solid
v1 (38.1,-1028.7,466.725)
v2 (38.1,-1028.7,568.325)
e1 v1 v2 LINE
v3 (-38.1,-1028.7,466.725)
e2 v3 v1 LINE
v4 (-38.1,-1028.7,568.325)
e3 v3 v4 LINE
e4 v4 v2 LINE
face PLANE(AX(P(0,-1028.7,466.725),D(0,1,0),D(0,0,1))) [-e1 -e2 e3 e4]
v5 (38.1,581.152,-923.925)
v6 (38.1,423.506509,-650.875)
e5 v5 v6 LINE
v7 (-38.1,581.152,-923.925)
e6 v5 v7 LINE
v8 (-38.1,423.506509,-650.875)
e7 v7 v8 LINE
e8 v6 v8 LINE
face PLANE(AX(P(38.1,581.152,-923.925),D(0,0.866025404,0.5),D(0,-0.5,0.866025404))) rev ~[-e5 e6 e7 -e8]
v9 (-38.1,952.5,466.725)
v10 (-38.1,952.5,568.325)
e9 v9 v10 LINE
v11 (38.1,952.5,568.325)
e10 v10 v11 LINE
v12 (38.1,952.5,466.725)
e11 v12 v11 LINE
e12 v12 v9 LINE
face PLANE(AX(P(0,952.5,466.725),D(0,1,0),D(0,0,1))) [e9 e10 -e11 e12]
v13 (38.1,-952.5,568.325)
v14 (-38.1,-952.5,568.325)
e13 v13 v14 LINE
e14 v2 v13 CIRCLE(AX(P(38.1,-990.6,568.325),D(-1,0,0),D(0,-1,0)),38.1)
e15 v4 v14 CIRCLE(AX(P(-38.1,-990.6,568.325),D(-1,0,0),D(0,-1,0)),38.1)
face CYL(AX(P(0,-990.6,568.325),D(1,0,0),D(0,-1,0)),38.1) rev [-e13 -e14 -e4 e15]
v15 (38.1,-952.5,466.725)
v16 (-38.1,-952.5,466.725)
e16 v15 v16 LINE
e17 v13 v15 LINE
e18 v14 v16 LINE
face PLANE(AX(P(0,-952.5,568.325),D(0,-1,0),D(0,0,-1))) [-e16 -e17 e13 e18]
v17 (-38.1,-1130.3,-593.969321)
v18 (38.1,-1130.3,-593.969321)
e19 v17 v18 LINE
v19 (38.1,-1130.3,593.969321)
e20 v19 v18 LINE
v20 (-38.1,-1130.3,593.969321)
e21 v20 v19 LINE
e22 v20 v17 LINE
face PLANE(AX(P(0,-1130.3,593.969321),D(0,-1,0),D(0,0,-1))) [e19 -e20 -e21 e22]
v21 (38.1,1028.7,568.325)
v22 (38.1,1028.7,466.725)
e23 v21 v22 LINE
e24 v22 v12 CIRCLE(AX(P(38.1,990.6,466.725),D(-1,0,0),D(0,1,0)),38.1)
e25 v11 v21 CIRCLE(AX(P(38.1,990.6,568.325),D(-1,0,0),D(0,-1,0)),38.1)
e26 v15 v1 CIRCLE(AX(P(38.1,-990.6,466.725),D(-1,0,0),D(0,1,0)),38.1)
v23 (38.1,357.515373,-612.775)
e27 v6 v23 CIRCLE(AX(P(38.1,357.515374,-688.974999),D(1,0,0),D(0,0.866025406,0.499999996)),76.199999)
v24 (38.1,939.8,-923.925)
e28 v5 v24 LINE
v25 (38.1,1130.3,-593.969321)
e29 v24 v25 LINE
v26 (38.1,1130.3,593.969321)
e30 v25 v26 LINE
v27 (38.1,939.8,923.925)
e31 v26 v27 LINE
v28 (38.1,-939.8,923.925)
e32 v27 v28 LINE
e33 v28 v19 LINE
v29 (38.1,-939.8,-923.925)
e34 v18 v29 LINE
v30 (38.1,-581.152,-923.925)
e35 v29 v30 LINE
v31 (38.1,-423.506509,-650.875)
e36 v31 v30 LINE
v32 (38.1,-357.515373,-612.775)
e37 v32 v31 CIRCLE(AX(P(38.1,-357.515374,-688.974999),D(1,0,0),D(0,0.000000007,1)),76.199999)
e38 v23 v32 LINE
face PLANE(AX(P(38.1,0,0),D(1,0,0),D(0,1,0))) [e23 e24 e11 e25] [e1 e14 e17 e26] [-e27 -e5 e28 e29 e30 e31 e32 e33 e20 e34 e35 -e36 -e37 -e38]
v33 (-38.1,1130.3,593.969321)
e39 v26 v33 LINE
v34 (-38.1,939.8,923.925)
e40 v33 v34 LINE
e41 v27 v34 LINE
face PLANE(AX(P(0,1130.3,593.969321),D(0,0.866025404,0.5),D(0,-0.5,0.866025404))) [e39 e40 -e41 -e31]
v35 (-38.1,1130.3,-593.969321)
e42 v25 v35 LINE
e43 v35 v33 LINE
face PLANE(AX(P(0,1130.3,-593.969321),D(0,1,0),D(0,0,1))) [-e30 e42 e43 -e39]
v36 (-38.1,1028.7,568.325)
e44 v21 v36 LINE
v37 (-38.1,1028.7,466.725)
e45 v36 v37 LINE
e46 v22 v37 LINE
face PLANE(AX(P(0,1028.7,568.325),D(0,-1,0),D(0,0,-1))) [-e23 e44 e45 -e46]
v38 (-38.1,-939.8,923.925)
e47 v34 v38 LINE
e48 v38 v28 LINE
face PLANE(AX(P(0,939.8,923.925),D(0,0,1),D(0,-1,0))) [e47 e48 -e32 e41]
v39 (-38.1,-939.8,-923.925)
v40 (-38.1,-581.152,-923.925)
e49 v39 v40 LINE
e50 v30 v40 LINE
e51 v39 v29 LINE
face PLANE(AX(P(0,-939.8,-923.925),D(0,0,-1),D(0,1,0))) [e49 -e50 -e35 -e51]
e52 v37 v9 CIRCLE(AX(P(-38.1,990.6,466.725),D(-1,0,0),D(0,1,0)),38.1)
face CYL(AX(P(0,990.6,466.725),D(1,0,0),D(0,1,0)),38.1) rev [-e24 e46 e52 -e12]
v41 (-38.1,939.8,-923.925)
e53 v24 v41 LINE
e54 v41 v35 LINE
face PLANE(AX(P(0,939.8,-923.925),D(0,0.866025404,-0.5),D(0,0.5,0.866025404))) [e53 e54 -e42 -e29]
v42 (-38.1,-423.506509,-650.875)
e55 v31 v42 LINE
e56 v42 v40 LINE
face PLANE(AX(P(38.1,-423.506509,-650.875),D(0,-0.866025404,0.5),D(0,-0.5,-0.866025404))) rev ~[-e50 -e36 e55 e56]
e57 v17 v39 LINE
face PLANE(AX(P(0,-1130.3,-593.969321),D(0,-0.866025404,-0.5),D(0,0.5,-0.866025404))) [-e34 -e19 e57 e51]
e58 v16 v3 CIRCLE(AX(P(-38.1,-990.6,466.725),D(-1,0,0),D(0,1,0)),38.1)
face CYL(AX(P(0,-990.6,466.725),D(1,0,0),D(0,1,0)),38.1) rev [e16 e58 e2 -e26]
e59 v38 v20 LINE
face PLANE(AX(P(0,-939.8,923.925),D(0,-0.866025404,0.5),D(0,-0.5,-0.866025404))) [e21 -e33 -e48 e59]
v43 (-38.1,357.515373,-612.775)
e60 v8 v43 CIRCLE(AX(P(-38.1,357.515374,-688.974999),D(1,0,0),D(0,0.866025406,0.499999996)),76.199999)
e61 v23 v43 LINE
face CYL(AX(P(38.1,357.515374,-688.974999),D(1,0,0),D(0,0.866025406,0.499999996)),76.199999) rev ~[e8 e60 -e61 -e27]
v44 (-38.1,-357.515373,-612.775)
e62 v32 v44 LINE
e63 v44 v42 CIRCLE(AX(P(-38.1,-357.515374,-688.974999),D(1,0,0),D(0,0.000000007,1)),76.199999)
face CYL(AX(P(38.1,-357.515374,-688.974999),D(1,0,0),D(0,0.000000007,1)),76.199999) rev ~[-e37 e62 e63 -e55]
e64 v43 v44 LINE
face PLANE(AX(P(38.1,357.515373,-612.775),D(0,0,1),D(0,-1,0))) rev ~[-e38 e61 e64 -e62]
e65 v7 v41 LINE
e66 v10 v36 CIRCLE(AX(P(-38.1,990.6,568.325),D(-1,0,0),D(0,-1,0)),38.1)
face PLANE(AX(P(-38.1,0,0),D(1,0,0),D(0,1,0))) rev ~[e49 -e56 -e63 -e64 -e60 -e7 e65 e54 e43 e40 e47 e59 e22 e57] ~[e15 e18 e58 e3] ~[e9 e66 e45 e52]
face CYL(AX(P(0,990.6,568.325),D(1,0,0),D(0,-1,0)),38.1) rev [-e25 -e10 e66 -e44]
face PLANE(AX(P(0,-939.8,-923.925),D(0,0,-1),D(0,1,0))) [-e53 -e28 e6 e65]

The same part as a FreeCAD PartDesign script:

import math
import FreeCAD as App
import Part
import Sketcher
from FreeCAD import Vector
Q = App.Units.Quantity

doc = App.newDocument("Part")
body = doc.addObject("PartDesign::Body", "Body")

sketch1 = body.newObject("Sketcher::SketchObject", "Sketch")
sketch1.AttachmentSupport = (doc.getObject("YZ_Plane"), [""])
sketch1.MapMode = "FlatFace"
sketch1.addGeometry(Part.LineSegment(Vector(939.8, 923.925, 0), Vector(-939.8, 923.925, 0)), False)
sketch1.addGeometry(Part.LineSegment(Vector(-939.8, 923.925, 0), Vector(-1130.3, 593.969321, 0)), False)
sketch1.addGeometry(Part.LineSegment(Vector(-1130.3, 593.969321, 0), Vector(-1130.3, -593.969321, 0)), False)
sketch1.addGeometry(Part.LineSegment(Vector(-1130.3, -593.969321, 0), Vector(-939.8, -923.925, 0)), False)
sketch1.addGeometry(Part.LineSegment(Vector(-939.8, -923.925, 0), Vector(939.8, -923.925, 0)), False)
sketch1.addGeometry(Part.LineSegment(Vector(939.8, -923.925, 0), Vector(1130.3, -593.969321, 0)), False)
sketch1.addGeometry(Part.LineSegment(Vector(1130.3, -593.969321, 0), Vector(1130.3, 593.969321, 0)), False)
sketch1.addGeometry(Part.LineSegment(Vector(1130.3, 593.969321, 0), Vector(939.8, 923.925, 0)), False)
sketch1.addGeometry(Part.ArcOfCircle(Part.Circle(Vector(-990.6, 466.725, 0), Vector(0, 0, 1), 38.1), math.radians(180), math.radians(360)), False)
sketch1.addGeometry(Part.LineSegment(Vector(-1028.7, 466.725, 0), Vector(-1028.7, 568.325, 0)), False)
sketch1.addGeometry(Part.ArcOfCircle(Part.Circle(Vector(-990.6, 568.325, 0), Vector(0, 0, 1), 38.1), math.radians(0), math.radians(180)), False)
sketch1.addGeometry(Part.LineSegment(Vector(-952.5, 568.325, 0), Vector(-952.5, 466.725, 0)), False)
sketch1.addGeometry(Part.LineSegment(Vector(952.5, 466.725, 0), Vector(952.5, 568.325, 0)), False)
sketch1.addGeometry(Part.ArcOfCircle(Part.Circle(Vector(990.6, 568.325, 0), Vector(0, 0, 1), 38.1), math.radians(0), math.radians(180)), False)
sketch1.addGeometry(Part.LineSegment(Vector(1028.7, 568.325, 0), Vector(1028.7, 466.725, 0)), False)
sketch1.addGeometry(Part.ArcOfCircle(Part.Circle(Vector(990.6, 466.725, 0), Vector(0, 0, 1), 38.1), math.radians(180), math.radians(360)), False)
sketch1.addConstraint(Sketcher.Constraint("Coincident", 0, 2, 1, 1))
sketch1.addConstraint(Sketcher.Constraint("Coincident", 1, 2, 2, 1))
sketch1.addConstraint(Sketcher.Constraint("Coincident", 2, 2, 3, 1))
sketch1.addConstraint(Sketcher.Constraint("Coincident", 3, 2, 4, 1))
sketch1.addConstraint(Sketcher.Constraint("Coincident", 4, 2, 5, 1))
sketch1.addConstraint(Sketcher.Constraint("Coincident", 5, 2, 6, 1))
sketch1.addConstraint(Sketcher.Constraint("Coincident", 6, 2, 7, 1))
sketch1.addConstraint(Sketcher.Constraint("Coincident", 7, 2, 0, 1))
sketch1.addConstraint(Sketcher.Constraint("Tangent", 8, 1, 9, 1))
sketch1.addConstraint(Sketcher.Constraint("Tangent", 9, 2, 10, 2))
sketch1.addConstraint(Sketcher.Constraint("Tangent", 10, 1, 11, 1))
sketch1.addConstraint(Sketcher.Constraint("Tangent", 11, 2, 8, 2))
sketch1.addConstraint(Sketcher.Constraint("Tangent", 12, 2, 13, 2))
sketch1.addConstraint(Sketcher.Constraint("Tangent", 13, 1, 14, 1))
sketch1.addConstraint(Sketcher.Constraint("Tangent", 14, 2, 15, 2))
sketch1.addConstraint(Sketcher.Constraint("Tangent", 15, 1, 12, 1))
sketch1.addConstraint(Sketcher.Constraint("Horizontal", 0))
sketch1.addConstraint(Sketcher.Constraint("Vertical", 2))
sketch1.addConstraint(Sketcher.Constraint("Horizontal", 4))
sketch1.addConstraint(Sketcher.Constraint("Vertical", 6))
sketch1.addConstraint(Sketcher.Constraint("Vertical", 9))
sketch1.addConstraint(Sketcher.Constraint("Vertical", 11))
sketch1.addConstraint(Sketcher.Constraint("Vertical", 12))
sketch1.addConstraint(Sketcher.Constraint("Vertical", 14))
sketch1.addConstraint(Sketcher.Constraint("Equal", 10, 13))
sketch1.addConstraint(Sketcher.Constraint("Symmetric", 0, 2, 4, 2, -1, 1))
sketch1.addConstraint(Sketcher.Constraint("Symmetric", 1, 2, 5, 2, -1, 1))
sketch1.addConstraint(Sketcher.Constraint("Symmetric", 10, 3, 13, 3, -2))
sketch1.addConstraint(Sketcher.Constraint("Parallel", 3, 7))
sketch1.addConstraint(Sketcher.Constraint("Horizontal", 8, 3, 15, 3))
sketch1.addConstraint(Sketcher.Constraint("Horizontal", 2, 2, 5, 2))
sketch1.addConstraint(Sketcher.Constraint("Horizontal", 1, 2, 6, 2))
sketch1.addConstraint(Sketcher.Constraint("Vertical", 0, 2, 3, 2))
sketch1.addConstraint(Sketcher.Constraint("Radius", 8, Q("1.5 in")))
sketch1.addConstraint(Sketcher.Constraint("DistanceX", 0, 2, 0, 1, Q("74 in")))
sketch1.addConstraint(Sketcher.Constraint("DistanceY", 9, 1, 9, 2, Q("4 in")))
sketch1.addConstraint(Sketcher.Constraint("Distance", 1, Q("15 in")))
sketch1.addConstraint(Sketcher.Constraint("DistanceX", 8, 3, -1, 1, Q("39 in")))
sketch1.addConstraint(Sketcher.Constraint("Angle", 1, Q("-120 deg")))
sketch1.addConstraint(Sketcher.Constraint("DistanceY", 10, 3, 0, 2, Q("14 in")))
sketch1.addConstraint(Sketcher.Constraint("DistanceY", 3, 2, 8, 3, Q("54.75 in")))
pad1 = body.newObject("PartDesign::Pad", "Pad")
pad1.Profile = sketch1
pad1.Length = Q("3 in")
pad1.Midplane = True

sketch2 = body.newObject("Sketcher::SketchObject", "Sketch001")
sketch2.AttachmentSupport = (doc.getObject("YZ_Plane"), [""])
sketch2.MapMode = "FlatFace"
sketch2.AttachmentOffset = App.Placement(Vector(0, 0, 1.5 * 25.4), App.Rotation())
sketch2.addGeometry(Part.LineSegment(Vector(357.515373, -612.775, 0), Vector(-357.515373, -612.775, 0)), False)
sketch2.addGeometry(Part.ArcOfCircle(Part.Circle(Vector(-357.515374, -688.974999, 0), Vector(0, 0, 1), 76.199999), math.radians(90), math.radians(150)), False)
sketch2.addGeometry(Part.LineSegment(Vector(-423.506509, -650.875, 0), Vector(-581.152, -923.925, 0)), False)
sketch2.addGeometry(Part.LineSegment(Vector(-581.152, -923.925, 0), Vector(581.152, -923.925, 0)), False)
sketch2.addGeometry(Part.LineSegment(Vector(581.152, -923.925, 0), Vector(423.506509, -650.875, 0)), False)
sketch2.addGeometry(Part.ArcOfCircle(Part.Circle(Vector(357.515374, -688.974999, 0), Vector(0, 0, 1), 76.199999), math.radians(30), math.radians(90)), False)
sketch2.addConstraint(Sketcher.Constraint("Tangent", 0, 2, 1, 1))
sketch2.addConstraint(Sketcher.Constraint("Tangent", 1, 2, 2, 1))
sketch2.addConstraint(Sketcher.Constraint("Coincident", 2, 2, 3, 1))
sketch2.addConstraint(Sketcher.Constraint("Coincident", 3, 2, 4, 1))
sketch2.addConstraint(Sketcher.Constraint("Tangent", 4, 2, 5, 1))
sketch2.addConstraint(Sketcher.Constraint("Tangent", 5, 2, 0, 1))
sketch2.addConstraint(Sketcher.Constraint("Horizontal", 0))
sketch2.addConstraint(Sketcher.Constraint("Horizontal", 3))
sketch2.addConstraint(Sketcher.Constraint("Equal", 1, 5))
sketch2.addConstraint(Sketcher.Constraint("Symmetric", 1, 2, 4, 2, -2))
sketch2.addConstraint(Sketcher.Constraint("Radius", 1, Q("3 in")))
sketch2.addConstraint(Sketcher.Constraint("Angle", 2, Q("-120 deg")))
sketch2.addConstraint(Sketcher.Constraint("DistanceX", 3, 1, 3, 2, Q("45.76 in")))
sketch2.addConstraint(Sketcher.Constraint("DistanceY", 2, 2, 1, 2, Q("10.75 in")))
sketch2.addConstraint(Sketcher.Constraint("DistanceY", 1, 3, -1, 1, Q("27.125 in")))
pocket1 = body.newObject("PartDesign::Pocket", "Pocket")
pocket1.Profile = sketch2
pocket1.Type = "ThroughAll"

doc.recompute()
